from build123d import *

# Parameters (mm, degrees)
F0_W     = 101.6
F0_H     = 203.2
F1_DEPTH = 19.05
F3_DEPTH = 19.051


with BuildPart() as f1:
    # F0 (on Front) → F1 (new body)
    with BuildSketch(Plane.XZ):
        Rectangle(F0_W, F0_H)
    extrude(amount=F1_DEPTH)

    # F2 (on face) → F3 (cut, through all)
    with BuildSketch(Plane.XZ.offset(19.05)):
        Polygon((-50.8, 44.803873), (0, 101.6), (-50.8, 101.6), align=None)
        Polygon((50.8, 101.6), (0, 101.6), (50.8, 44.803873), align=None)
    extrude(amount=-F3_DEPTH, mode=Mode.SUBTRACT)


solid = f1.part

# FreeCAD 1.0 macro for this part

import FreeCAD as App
import Part
import Sketcher
from FreeCAD import Vector
Q = App.Units.Quantity


def add_polygon(sketch, points):
    """Adds a closed chain of lines whose ends are joined by coincident constraints."""
    first, n = sketch.GeometryCount, len(points)
    for a, b in zip(points, points[1:] + points[:1]):
        sketch.addGeometry(Part.LineSegment(App.Vector(*a, 0), App.Vector(*b, 0)), False)
    for i in range(n):
        sketch.addConstraint(Sketcher.Constraint("Coincident", first + i, 2, first + (i + 1) % n, 1))

doc = App.newDocument("Part")
params = doc.addObject("Spreadsheet::Sheet", "Params")
for row, (alias, value) in enumerate([
    ("sketch1_width", "4 in"),
    ("sketch1_height", "8 in"),
    ("pad1_length", "0.75 in"),
    ("sketch2_width", "2 in"),
    ("sketch2_length", "3 in"),
], start=1):
    params.set(f"A{row}", alias)
    params.set(f"B{row}", "=" + value)
    params.setAlias(f"B{row}", alias)

body = doc.addObject("PartDesign::Body", "Body")

sketch1 = body.newObject("Sketcher::SketchObject", "Sketch")
sketch1.AttachmentSupport = (doc.getObject("XZ_Plane"), [""])
sketch1.MapMode = "FlatFace"
add_polygon(sketch1, [(-51, 102), (-51, -102), (51, -102), (51, 102)])
sketch1.addConstraint([
    Sketcher.Constraint("Vertical", 0),
    Sketcher.Constraint("Horizontal", 1),
    Sketcher.Constraint("Vertical", 2),
    Sketcher.Constraint("Horizontal", 3),
    Sketcher.Constraint("Symmetric", 0, 2, 2, 2, -1, 1),
    Sketcher.Constraint("DistanceX", 1, 1, 1, 2, Q("4 in")),
    Sketcher.Constraint("DistanceY", 0, 2, 0, 1, Q("8 in")),
])
sketch1.setExpression("Constraints[9]", "Params.sketch1_width")
sketch1.setExpression("Constraints[10]", "Params.sketch1_height")
pad1 = body.newObject("PartDesign::Pad", "Pad")
pad1.Profile = sketch1
pad1.setExpression("Length", "Params.pad1_length")

sketch2 = body.newObject("Sketcher::SketchObject", "Sketch001")
sketch2.AttachmentSupport = (doc.getObject("XZ_Plane"), [""])
sketch2.MapMode = "FlatFace"
sketch2.AttachmentOffset = App.Placement(Vector(0, 0, 0.75 * 25.4), App.Rotation())
add_polygon(sketch2, [(-51, 45), (0, 102), (-51, 102)])
add_polygon(sketch2, [(51, 102), (0, 102), (51, 45)])
sketch2.addConstraint([
    Sketcher.Constraint("Horizontal", 1),
    Sketcher.Constraint("Vertical", 2),
    Sketcher.Constraint("Horizontal", 3),
    Sketcher.Constraint("Vertical", 5),
    Sketcher.Constraint("Coincident", 3, 2, 0, 2),
    Sketcher.Constraint("Symmetric", 2, 2, 4, 2, -2),
    Sketcher.Constraint("PointOnObject", 0, 2, -2),
    Sketcher.Constraint("DistanceX", 1, 2, 1, 1, Q("2 in")),
    Sketcher.Constraint("Distance", 0, Q("3 in")),
    Sketcher.Constraint("DistanceY", -1, 1, 0, 2, Q("4 in")),
])
sketch2.setExpression("Constraints[13]", "Params.sketch2_width")
sketch2.setExpression("Constraints[14]", "Params.sketch2_length")
pocket1 = body.newObject("PartDesign::Pocket", "Pocket")
pocket1.Profile = sketch2
pocket1.Type = "ThroughAll"

doc.recompute()
